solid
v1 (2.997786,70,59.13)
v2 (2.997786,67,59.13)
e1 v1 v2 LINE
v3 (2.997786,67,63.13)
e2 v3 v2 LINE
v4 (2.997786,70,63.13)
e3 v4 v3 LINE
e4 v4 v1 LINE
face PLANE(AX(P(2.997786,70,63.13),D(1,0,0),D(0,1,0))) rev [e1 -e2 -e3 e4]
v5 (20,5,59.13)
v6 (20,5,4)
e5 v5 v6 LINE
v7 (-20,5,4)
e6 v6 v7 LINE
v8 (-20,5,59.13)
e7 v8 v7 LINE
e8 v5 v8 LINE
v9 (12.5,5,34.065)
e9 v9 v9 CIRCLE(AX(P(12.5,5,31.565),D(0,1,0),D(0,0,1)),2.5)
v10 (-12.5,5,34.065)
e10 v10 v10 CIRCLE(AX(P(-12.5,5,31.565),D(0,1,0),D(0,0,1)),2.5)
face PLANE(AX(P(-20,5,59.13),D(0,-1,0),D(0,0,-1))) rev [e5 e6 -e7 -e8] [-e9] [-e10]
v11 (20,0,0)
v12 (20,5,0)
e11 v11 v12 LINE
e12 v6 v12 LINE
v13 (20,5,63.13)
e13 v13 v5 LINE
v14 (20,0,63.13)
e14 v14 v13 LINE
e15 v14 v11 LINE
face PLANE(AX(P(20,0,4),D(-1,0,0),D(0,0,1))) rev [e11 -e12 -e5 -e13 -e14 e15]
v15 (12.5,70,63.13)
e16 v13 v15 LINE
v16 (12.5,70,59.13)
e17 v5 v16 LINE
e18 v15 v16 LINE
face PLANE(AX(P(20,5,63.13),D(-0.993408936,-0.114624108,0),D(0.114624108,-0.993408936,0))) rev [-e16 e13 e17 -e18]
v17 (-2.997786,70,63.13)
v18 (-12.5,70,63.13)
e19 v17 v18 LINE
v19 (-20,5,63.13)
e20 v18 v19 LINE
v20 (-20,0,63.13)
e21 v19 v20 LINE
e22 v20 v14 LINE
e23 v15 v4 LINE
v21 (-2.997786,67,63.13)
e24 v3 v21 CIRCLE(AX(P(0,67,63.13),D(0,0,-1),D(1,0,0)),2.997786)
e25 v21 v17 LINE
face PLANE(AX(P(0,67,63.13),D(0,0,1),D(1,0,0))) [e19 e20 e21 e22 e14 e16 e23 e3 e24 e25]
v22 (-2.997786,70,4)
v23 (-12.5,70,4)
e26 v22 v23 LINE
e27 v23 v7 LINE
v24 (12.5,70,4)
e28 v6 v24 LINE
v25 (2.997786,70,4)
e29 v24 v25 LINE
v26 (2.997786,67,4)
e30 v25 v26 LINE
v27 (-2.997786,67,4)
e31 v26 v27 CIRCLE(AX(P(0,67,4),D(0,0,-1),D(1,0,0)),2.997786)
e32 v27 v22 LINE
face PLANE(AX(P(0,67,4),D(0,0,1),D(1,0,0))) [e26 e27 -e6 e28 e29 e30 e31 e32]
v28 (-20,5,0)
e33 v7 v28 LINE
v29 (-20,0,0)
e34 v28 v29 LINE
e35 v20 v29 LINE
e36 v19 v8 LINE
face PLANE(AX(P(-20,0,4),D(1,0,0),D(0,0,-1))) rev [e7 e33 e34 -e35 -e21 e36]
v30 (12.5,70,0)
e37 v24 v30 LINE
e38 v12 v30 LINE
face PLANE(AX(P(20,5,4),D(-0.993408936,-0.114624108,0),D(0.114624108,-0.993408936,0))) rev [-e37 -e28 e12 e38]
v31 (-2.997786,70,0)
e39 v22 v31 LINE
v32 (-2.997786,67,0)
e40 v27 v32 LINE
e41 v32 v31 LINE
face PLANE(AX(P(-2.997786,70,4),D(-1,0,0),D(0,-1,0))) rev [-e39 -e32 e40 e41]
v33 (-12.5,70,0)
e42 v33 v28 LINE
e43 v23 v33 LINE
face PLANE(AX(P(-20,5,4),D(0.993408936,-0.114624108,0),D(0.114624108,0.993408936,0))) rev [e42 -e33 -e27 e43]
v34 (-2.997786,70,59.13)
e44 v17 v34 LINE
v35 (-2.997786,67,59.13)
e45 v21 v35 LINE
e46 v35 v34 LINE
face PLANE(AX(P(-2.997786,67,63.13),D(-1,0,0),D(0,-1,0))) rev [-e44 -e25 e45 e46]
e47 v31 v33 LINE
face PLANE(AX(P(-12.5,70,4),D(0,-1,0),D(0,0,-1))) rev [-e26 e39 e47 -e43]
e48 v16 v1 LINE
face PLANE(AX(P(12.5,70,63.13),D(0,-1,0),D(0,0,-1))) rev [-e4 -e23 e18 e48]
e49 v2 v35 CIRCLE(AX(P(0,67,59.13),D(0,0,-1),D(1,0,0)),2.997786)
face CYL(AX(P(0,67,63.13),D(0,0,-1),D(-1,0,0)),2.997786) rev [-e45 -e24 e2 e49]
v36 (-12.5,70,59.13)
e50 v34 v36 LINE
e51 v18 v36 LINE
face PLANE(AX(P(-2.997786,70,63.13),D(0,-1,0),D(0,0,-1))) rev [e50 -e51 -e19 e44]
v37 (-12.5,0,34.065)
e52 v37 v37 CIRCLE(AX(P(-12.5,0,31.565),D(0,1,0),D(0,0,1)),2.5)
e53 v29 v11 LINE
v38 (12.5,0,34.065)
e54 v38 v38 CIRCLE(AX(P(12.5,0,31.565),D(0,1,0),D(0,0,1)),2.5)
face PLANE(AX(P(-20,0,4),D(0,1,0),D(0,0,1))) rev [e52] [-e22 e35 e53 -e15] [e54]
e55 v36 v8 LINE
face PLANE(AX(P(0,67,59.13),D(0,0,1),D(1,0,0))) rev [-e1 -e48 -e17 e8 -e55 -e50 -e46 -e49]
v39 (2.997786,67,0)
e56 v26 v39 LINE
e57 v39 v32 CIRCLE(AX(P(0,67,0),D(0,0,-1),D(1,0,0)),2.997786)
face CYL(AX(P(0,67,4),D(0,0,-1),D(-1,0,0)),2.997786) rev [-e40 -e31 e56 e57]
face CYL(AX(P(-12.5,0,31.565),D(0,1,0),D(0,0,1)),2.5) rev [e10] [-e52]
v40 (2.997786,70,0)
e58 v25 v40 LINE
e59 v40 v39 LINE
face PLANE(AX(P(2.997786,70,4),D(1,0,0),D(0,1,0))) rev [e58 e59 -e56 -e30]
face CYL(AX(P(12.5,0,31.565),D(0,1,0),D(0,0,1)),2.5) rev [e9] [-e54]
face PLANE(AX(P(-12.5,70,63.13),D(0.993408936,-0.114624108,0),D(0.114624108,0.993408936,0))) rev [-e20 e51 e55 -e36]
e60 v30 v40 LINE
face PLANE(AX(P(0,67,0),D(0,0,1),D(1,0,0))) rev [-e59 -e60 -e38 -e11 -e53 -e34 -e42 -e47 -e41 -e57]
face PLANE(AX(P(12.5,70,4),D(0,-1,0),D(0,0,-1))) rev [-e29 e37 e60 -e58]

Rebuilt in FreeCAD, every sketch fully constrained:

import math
import FreeCAD as App
import Part
import Sketcher
from FreeCAD import Vector


def add_polygon(sketch, points):
    """Adds a closed chain of lines whose ends are joined by coincident constraints."""
    first, n = sketch.GeometryCount, len(points)
    for a, b in zip(points, points[1:] + points[:1]):
        sketch.addGeometry(Part.LineSegment(App.Vector(*a, 0), App.Vector(*b, 0)), False)
    for i in range(n):
        sketch.addConstraint(Sketcher.Constraint("Coincident", first + i, 2, first + (i + 1) % n, 1))

doc = App.newDocument("Part")
params = doc.addObject("Spreadsheet::Sheet", "Params")
for row, (alias, value) in enumerate([
    ("sketch1_width", "40 mm"),
    ("sketch1_height", "5 mm"),
    ("sketch1_height2", "3 mm"),
    ("pad1_length", "4 mm"),
    ("sketch2_width", "40 mm"),
    ("sketch2_height", "5 mm"),
    ("pad2_length", "55.13 mm"),
    ("sketch3_width", "40 mm"),
    ("sketch3_height", "3 mm"),
    ("sketch3_height2", "5 mm"),
    ("pad3_length", "4 mm"),
    ("sketch4_diameter", "5 mm"),
], start=1):
    params.set(f"A{row}", alias)
    params.set(f"B{row}", "=" + value)
    params.setAlias(f"B{row}", alias)

body = doc.addObject("PartDesign::Body", "Body")

sketch1 = doc.addObject("Sketcher::SketchObject", "Sketch")
body.addObject(sketch1)
sketch1.AttachmentSupport = (doc.XY_Plane, [""])
sketch1.MapMode = "FlatFace"
sketch1.addGeometry(Part.LineSegment(Vector(-20, 0, 0), Vector(20, 0, 0)), False)
sketch1.addGeometry(Part.LineSegment(Vector(20, 0, 0), Vector(20, 5, 0)), False)
sketch1.addGeometry(Part.LineSegment(Vector(20, 5, 0), Vector(12.5, 70, 0)), False)
sketch1.addGeometry(Part.LineSegment(Vector(12.5, 70, 0), Vector(3, 70, 0)), False)
sketch1.addGeometry(Part.LineSegment(Vector(3, 70, 0), Vector(3, 67, 0)), False)
sketch1.addGeometry(Part.ArcOfCircle(Part.Circle(Vector(0, 67, 0), Vector(0, 0, 1), 3), math.radians(180), math.radians(360)), False)
sketch1.addGeometry(Part.LineSegment(Vector(-3, 67, 0), Vector(-3, 70, 0)), False)
sketch1.addGeometry(Part.LineSegment(Vector(-3, 70, 0), Vector(-12.5, 70, 0)), False)
sketch1.addGeometry(Part.LineSegment(Vector(-12.5, 70, 0), Vector(-20, 5, 0)), False)
sketch1.addGeometry(Part.LineSegment(Vector(-20, 5, 0), Vector(-20, 0, 0)), False)
sketch1.addConstraint(Sketcher.Constraint("Coincident", 0, 2, 1, 1))
sketch1.addConstraint(Sketcher.Constraint("Coincident", 1, 2, 2, 1))
sketch1.addConstraint(Sketcher.Constraint("Coincident", 2, 2, 3, 1))
sketch1.addConstraint(Sketcher.Constraint("Coincident", 3, 2, 4, 1))
sketch1.addConstraint(Sketcher.Constraint("Tangent", 4, 2, 5, 2))
sketch1.addConstraint(Sketcher.Constraint("Tangent", 5, 1, 6, 1))
sketch1.addConstraint(Sketcher.Constraint("Coincident", 6, 2, 7, 1))
sketch1.addConstraint(Sketcher.Constraint("Coincident", 7, 2, 8, 1))
sketch1.addConstraint(Sketcher.Constraint("Coincident", 8, 2, 9, 1))
sketch1.addConstraint(Sketcher.Constraint("Coincident", 9, 2, 0, 1))
sketch1.addConstraint(Sketcher.Constraint("Horizontal", 0))
sketch1.addConstraint(Sketcher.Constraint("Vertical", 1))
sketch1.addConstraint(Sketcher.Constraint("Horizontal", 3))
sketch1.addConstraint(Sketcher.Constraint("Vertical", 4))
sketch1.addConstraint(Sketcher.Constraint("Vertical", 6))
sketch1.addConstraint(Sketcher.Constraint("Horizontal", 7))
sketch1.addConstraint(Sketcher.Constraint("Vertical", 9))
sketch1.addConstraint(Sketcher.Constraint("Symmetric", 0, 2, 9, 2, -1, 1))
sketch1.addConstraint(Sketcher.Constraint("Symmetric", 3, 2, 6, 2, -2))
sketch1.addConstraint(Sketcher.Constraint("Horizontal", 1, 2, 8, 2))
sketch1.addConstraint(Sketcher.Constraint("Equal", 3, 7))
sketch1.addConstraint(Sketcher.Constraint("DistanceX", 0, 1, 0, 2, 40.0))
sketch1.addConstraint(Sketcher.Constraint("DistanceY", 1, 1, 1, 2, 5.0))
sketch1.addConstraint(Sketcher.Constraint("DistanceY", 4, 2, 4, 1, 3.0))
sketch1.addConstraint(Sketcher.Constraint("DistanceY", -1, 1, 5, 3, 67.0))
sketch1.addConstraint(Sketcher.Constraint("DistanceX", -1, 1, 2, 2, 12.5))
sketch1.addConstraint(Sketcher.Constraint("Radius", 5, 2.997786))
sketch1.setExpression("Constraints[21]", "Params.sketch1_width")
sketch1.setExpression("Constraints[22]", "Params.sketch1_height")
sketch1.setExpression("Constraints[23]", "Params.sketch1_height2")
pad1 = doc.addObject("PartDesign::Pad", "Pad")
body.addObject(pad1)
pad1.Profile = sketch1
pad1.setExpression("Length", "Params.pad1_length")

sketch2 = doc.addObject("Sketcher::SketchObject", "Sketch001")
body.addObject(sketch2)
sketch2.AttachmentSupport = (doc.XY_Plane, [""])
sketch2.MapMode = "FlatFace"
sketch2.AttachmentOffset = App.Placement(Vector(0, 0, 4), App.Rotation())
add_polygon(sketch2, [(-20, 5), (-20, 0), (20, 0), (20, 5)])
sketch2.addConstraint(Sketcher.Constraint("Vertical", 0))
sketch2.addConstraint(Sketcher.Constraint("Horizontal", 1))
sketch2.addConstraint(Sketcher.Constraint("Vertical", 2))
sketch2.addConstraint(Sketcher.Constraint("Horizontal", 3))
sketch2.addConstraint(Sketcher.Constraint("Symmetric", 0, 2, 1, 2, -1, 1))
sketch2.addConstraint(Sketcher.Constraint("DistanceX", 1, 1, 1, 2, 40.0))
sketch2.addConstraint(Sketcher.Constraint("DistanceY", 0, 2, 0, 1, 5.0))
sketch2.setExpression("Constraints[9]", "Params.sketch2_width")
sketch2.setExpression("Constraints[10]", "Params.sketch2_height")
pad2 = doc.addObject("PartDesign::Pad", "Pad001")
body.addObject(pad2)
pad2.Profile = sketch2
pad2.setExpression("Length", "Params.pad2_length")

sketch3 = doc.addObject("Sketcher::SketchObject", "Sketch002")
body.addObject(sketch3)
sketch3.AttachmentSupport = (doc.XY_Plane, [""])
sketch3.MapMode = "FlatFace"
sketch3.AttachmentOffset = App.Placement(Vector(0, 0, 59.13), App.Rotation())
sketch3.addGeometry(Part.LineSegment(Vector(20, 5, 0), Vector(12.5, 70, 0)), False)
sketch3.addGeometry(Part.LineSegment(Vector(12.5, 70, 0), Vector(3, 70, 0)), False)
sketch3.addGeometry(Part.LineSegment(Vector(3, 70, 0), Vector(3, 67, 0)), False)
sketch3.addGeometry(Part.ArcOfCircle(Part.Circle(Vector(0, 67, 0), Vector(0, 0, 1), 3), math.radians(180), math.radians(360)), False)
sketch3.addGeometry(Part.LineSegment(Vector(-3, 67, 0), Vector(-3, 70, 0)), False)
sketch3.addGeometry(Part.LineSegment(Vector(-3, 70, 0), Vector(-12.5, 70, 0)), False)
sketch3.addGeometry(Part.LineSegment(Vector(-12.5, 70, 0), Vector(-20, 5, 0)), False)
sketch3.addGeometry(Part.LineSegment(Vector(-20, 5, 0), Vector(-20, 0, 0)), False)
sketch3.addGeometry(Part.LineSegment(Vector(-20, 0, 0), Vector(20, 0, 0)), False)
sketch3.addGeometry(Part.LineSegment(Vector(20, 0, 0), Vector(20, 5, 0)), False)
sketch3.addConstraint(Sketcher.Constraint("Coincident", 0, 2, 1, 1))
sketch3.addConstraint(Sketcher.Constraint("Coincident", 1, 2, 2, 1))
sketch3.addConstraint(Sketcher.Constraint("Tangent", 2, 2, 3, 2))
sketch3.addConstraint(Sketcher.Constraint("Tangent", 3, 1, 4, 1))
sketch3.addConstraint(Sketcher.Constraint("Coincident", 4, 2, 5, 1))
sketch3.addConstraint(Sketcher.Constraint("Coincident", 5, 2, 6, 1))
sketch3.addConstraint(Sketcher.Constraint("Coincident", 6, 2, 7, 1))
sketch3.addConstraint(Sketcher.Constraint("Coincident", 7, 2, 8, 1))
sketch3.addConstraint(Sketcher.Constraint("Coincident", 8, 2, 9, 1))
sketch3.addConstraint(Sketcher.Constraint("Coincident", 9, 2, 0, 1))
sketch3.addConstraint(Sketcher.Constraint("Horizontal", 1))
sketch3.addConstraint(Sketcher.Constraint("Vertical", 2))
sketch3.addConstraint(Sketcher.Constraint("Vertical", 4))
sketch3.addConstraint(Sketcher.Constraint("Horizontal", 5))
sketch3.addConstraint(Sketcher.Constraint("Vertical", 7))
sketch3.addConstraint(Sketcher.Constraint("Horizontal", 8))
sketch3.addConstraint(Sketcher.Constraint("Vertical", 9))
sketch3.addConstraint(Sketcher.Constraint("Symmetric", 7, 2, 8, 2, -1, 1))
sketch3.addConstraint(Sketcher.Constraint("Symmetric", 1, 2, 4, 2, -2))
sketch3.addConstraint(Sketcher.Constraint("Horizontal", 6, 2, 9, 2))
sketch3.addConstraint(Sketcher.Constraint("Equal", 1, 5))
sketch3.addConstraint(Sketcher.Constraint("DistanceX", 8, 1, 8, 2, 40.0))
sketch3.addConstraint(Sketcher.Constraint("DistanceY", 2, 2, 2, 1, 3.0))
sketch3.addConstraint(Sketcher.Constraint("DistanceY", 7, 2, 7, 1, 5.0))
sketch3.addConstraint(Sketcher.Constraint("DistanceY", -1, 1, 3, 3, 67.0))
sketch3.addConstraint(Sketcher.Constraint("DistanceX", -1, 1, 0, 2, 12.5))
sketch3.addConstraint(Sketcher.Constraint("Radius", 3, 2.997786))
sketch3.setExpression("Constraints[21]", "Params.sketch3_width")
sketch3.setExpression("Constraints[22]", "Params.sketch3_height")
sketch3.setExpression("Constraints[23]", "Params.sketch3_height2")
pad3 = doc.addObject("PartDesign::Pad", "Pad002")
body.addObject(pad3)
pad3.Profile = sketch3
pad3.setExpression("Length", "Params.pad3_length")

sketch4 = doc.addObject("Sketcher::SketchObject", "Sketch003")
body.addObject(sketch4)
sketch4.AttachmentSupport = (doc.XZ_Plane, [""])
sketch4.MapMode = "FlatFace"
sketch4.AttachmentOffset = App.Placement(Vector(0, 0, -5), App.Rotation())
sketch4.addGeometry(Part.Circle(Vector(12.5, 31.6, 0), Vector(0, 0, 1), 2.5), False)
sketch4.addGeometry(Part.Circle(Vector(-12.5, 31.6, 0), Vector(0, 0, 1), 2.5), False)
sketch4.addConstraint(Sketcher.Constraint("Equal", 0, 1))
sketch4.addConstraint(Sketcher.Constraint("Symmetric", 0, 3, 1, 3, -2))
sketch4.addConstraint(Sketcher.Constraint("Diameter", 0, 5.0))
sketch4.addConstraint(Sketcher.Constraint("DistanceX", 1, 3, 0, 3, 25.0))
sketch4.addConstraint(Sketcher.Constraint("DistanceY", -1, 1, 0, 3, 31.565))
sketch4.setExpression("Constraints[2]", "Params.sketch4_diameter")
pocket1 = doc.addObject("PartDesign::Pocket", "Pocket")
body.addObject(pocket1)
pocket1.Profile = sketch4
pocket1.Type = "ThroughAll"
pocket1.Reversed = True

doc.recompute()
